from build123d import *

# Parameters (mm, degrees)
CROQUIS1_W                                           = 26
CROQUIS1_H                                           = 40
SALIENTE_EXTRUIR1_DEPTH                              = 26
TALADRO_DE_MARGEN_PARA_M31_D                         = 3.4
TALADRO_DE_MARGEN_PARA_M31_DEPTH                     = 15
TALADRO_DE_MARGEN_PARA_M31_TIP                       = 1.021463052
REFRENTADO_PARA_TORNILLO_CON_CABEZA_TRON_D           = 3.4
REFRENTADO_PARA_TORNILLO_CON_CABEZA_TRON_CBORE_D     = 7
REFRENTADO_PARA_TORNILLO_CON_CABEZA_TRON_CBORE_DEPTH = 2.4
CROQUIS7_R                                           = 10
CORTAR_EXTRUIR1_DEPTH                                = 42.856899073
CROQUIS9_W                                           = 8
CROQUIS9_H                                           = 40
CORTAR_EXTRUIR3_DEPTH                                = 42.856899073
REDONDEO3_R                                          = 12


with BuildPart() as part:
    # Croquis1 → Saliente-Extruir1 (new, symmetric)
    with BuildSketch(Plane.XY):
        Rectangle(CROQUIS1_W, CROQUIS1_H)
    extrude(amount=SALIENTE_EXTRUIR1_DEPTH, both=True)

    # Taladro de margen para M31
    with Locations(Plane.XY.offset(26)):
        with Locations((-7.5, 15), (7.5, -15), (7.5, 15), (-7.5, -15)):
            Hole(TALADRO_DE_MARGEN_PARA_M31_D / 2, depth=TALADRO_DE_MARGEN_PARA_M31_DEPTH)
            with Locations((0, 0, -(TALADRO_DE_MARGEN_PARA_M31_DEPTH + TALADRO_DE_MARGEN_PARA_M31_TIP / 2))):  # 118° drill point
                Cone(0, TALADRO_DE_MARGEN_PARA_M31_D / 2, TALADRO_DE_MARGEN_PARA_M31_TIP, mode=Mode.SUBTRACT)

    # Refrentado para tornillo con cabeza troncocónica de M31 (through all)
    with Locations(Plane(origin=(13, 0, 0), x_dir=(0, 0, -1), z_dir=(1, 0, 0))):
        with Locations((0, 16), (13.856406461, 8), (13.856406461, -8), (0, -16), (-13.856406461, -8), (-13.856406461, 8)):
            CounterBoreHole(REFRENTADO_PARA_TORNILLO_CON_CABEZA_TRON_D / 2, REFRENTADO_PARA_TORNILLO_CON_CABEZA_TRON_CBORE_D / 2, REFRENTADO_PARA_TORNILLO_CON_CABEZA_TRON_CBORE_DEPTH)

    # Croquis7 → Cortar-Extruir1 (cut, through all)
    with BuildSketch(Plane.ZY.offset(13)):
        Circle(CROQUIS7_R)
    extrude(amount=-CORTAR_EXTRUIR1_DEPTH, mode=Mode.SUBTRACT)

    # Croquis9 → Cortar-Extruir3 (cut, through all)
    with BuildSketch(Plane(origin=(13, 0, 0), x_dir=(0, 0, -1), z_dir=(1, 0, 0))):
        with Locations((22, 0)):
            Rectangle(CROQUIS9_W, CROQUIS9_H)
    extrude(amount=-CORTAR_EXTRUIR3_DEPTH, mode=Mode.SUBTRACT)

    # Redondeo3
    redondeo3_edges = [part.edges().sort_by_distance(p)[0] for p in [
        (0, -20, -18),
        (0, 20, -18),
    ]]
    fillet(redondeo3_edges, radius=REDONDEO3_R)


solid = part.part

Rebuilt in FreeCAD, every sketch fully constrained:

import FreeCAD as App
import Part
import Sketcher
from FreeCAD import Vector
Q = App.Units.Quantity


def edges_at(feature, points):
    """Names of the edges that pass closest to the given points."""
    edges = feature.Shape.Edges
    near = lambda p: min(range(len(edges)), key=lambda i: edges[i].distToShape(Part.Vertex(*p))[0])
    return sorted({f"Edge{near(p) + 1}" for p in points})

doc = App.newDocument("Part")
body = doc.addObject("PartDesign::Body", "Body")

# Sketch on XY plane
sketch1 = body.newObject("Sketcher::SketchObject", "Sketch")
sketch1.AttachmentSupport = (doc.getObject("XY_Plane"), [""])
sketch1.MapMode = "FlatFace"
sketch1.addGeometry(Part.LineSegment(Vector(-13, 20, 0), Vector(-13, -20, 0)), False)
sketch1.addGeometry(Part.LineSegment(Vector(-13, -20, 0), Vector(13, -20, 0)), False)
sketch1.addGeometry(Part.LineSegment(Vector(13, -20, 0), Vector(13, 20, 0)), False)
sketch1.addGeometry(Part.LineSegment(Vector(13, 20, 0), Vector(-13, 20, 0)), False)
sketch1.addConstraint(Sketcher.Constraint("Coincident", 0, 2, 1, 1))
sketch1.addConstraint(Sketcher.Constraint("Coincident", 1, 2, 2, 1))
sketch1.addConstraint(Sketcher.Constraint("Coincident", 2, 2, 3, 1))
sketch1.addConstraint(Sketcher.Constraint("Coincident", 3, 2, 0, 1))
sketch1.addConstraint(Sketcher.Constraint("Vertical", 0))
sketch1.addConstraint(Sketcher.Constraint("Horizontal", 1))
sketch1.addConstraint(Sketcher.Constraint("Vertical", 2))
sketch1.addConstraint(Sketcher.Constraint("Horizontal", 3))
sketch1.addConstraint(Sketcher.Constraint("Symmetric", 0, 2, 2, 2, -1, 1))
sketch1.addConstraint(Sketcher.Constraint("DistanceX", 1, 1, 1, 2, Q("26 mm")))
sketch1.addConstraint(Sketcher.Constraint("DistanceY", 0, 2, 0, 1, Q("40 mm")))
pad1 = body.newObject("PartDesign::Pad", "Pad")
pad1.Profile = sketch1
pad1.Length = 52
pad1.Midplane = True

# Sketch on XY plane
sketch2 = body.newObject("Sketcher::SketchObject", "Sketch001")
sketch2.AttachmentSupport = (doc.getObject("XY_Plane"), [""])
sketch2.MapMode = "FlatFace"
sketch2.AttachmentOffset = App.Placement(Vector(0, 0, 26), App.Rotation())
sketch2.addGeometry(Part.Circle(Vector(-7.5, 15, 0), Vector(0, 0, 1), 1.7), False)
sketch2.addGeometry(Part.Circle(Vector(7.5, -15, 0), Vector(0, 0, 1), 1.7), False)
sketch2.addGeometry(Part.Circle(Vector(7.5, 15, 0), Vector(0, 0, 1), 1.7), False)
sketch2.addGeometry(Part.Circle(Vector(-7.5, -15, 0), Vector(0, 0, 1), 1.7), False)
sketch2.addConstraint(Sketcher.Constraint("Equal", 0, 1))
sketch2.addConstraint(Sketcher.Constraint("Equal", 1, 2))
sketch2.addConstraint(Sketcher.Constraint("Equal", 2, 3))
sketch2.addConstraint(Sketcher.Constraint("Symmetric", 0, 3, 1, 3, -1, 1))
sketch2.addConstraint(Sketcher.Constraint("Symmetric", 2, 3, 3, 3, -1, 1))
sketch2.addConstraint(Sketcher.Constraint("Symmetric", 0, 3, 2, 3, -2))
sketch2.addConstraint(Sketcher.Constraint("Diameter", 0, Q("3.4 mm")))
sketch2.addConstraint(Sketcher.Constraint("DistanceY", -1, 1, 0, 3, Q("15 mm")))
sketch2.addConstraint(Sketcher.Constraint("DistanceX", 0, 3, 1, 3, Q("15 mm")))
doc.recompute()
hole = body.newObject("PartDesign::Hole", "Hole")
hole.Profile = sketch2
hole.ThreadType = "None"
hole.Diameter = 3.4
hole.DepthType = "Dimension"
hole.Depth = 15
hole.DrillPoint = "Angled"
hole.DrillPointAngle = 118

# Sketch on YZ plane
sketch3 = body.newObject("Sketcher::SketchObject", "Sketch002")
sketch3.AttachmentSupport = (doc.getObject("YZ_Plane"), [""])
sketch3.MapMode = "FlatFace"
sketch3.AttachmentOffset = App.Placement(Vector(0, 0, 13), App.Rotation())
sketch3.addGeometry(Part.Circle(Vector(16, 0, 0), Vector(0, 0, 1), 1.7), False)
sketch3.addGeometry(Part.Circle(Vector(8, -13.9, 0), Vector(0, 0, 1), 1.7), False)
sketch3.addGeometry(Part.Circle(Vector(-8, -13.9, 0), Vector(0, 0, 1), 1.7), False)
sketch3.addGeometry(Part.Circle(Vector(-16, 0, 0), Vector(0, 0, 1), 1.7), False)
sketch3.addGeometry(Part.Circle(Vector(-8, 13.9, 0), Vector(0, 0, 1), 1.7), False)
sketch3.addGeometry(Part.Circle(Vector(8, 13.9, 0), Vector(0, 0, 1), 1.7), False)
sketch3.addConstraint(Sketcher.Constraint("Equal", 0, 1))
sketch3.addConstraint(Sketcher.Constraint("Equal", 1, 2))
sketch3.addConstraint(Sketcher.Constraint("Equal", 2, 3))
sketch3.addConstraint(Sketcher.Constraint("Equal", 3, 4))
sketch3.addConstraint(Sketcher.Constraint("Equal", 4, 5))
sketch3.addConstraint(Sketcher.Constraint("Symmetric", 0, 3, 3, 3, -1, 1))
sketch3.addConstraint(Sketcher.Constraint("Symmetric", 1, 3, 4, 3, -1, 1))
sketch3.addConstraint(Sketcher.Constraint("Symmetric", 2, 3, 5, 3, -1, 1))
sketch3.addConstraint(Sketcher.Constraint("Symmetric", 1, 3, 2, 3, -2))
sketch3.addConstraint(Sketcher.Constraint("PointOnObject", 0, 3, -1))
sketch3.addConstraint(Sketcher.Constraint("Diameter", 0, Q("3.4 mm")))
sketch3.addConstraint(Sketcher.Constraint("DistanceX", -1, 1, 0, 3, Q("16 mm")))
sketch3.addConstraint(Sketcher.Constraint("DistanceX", -1, 1, 1, 3, Q("8 mm")))
sketch3.addConstraint(Sketcher.Constraint("DistanceY", 1, 3, -1, 1, Q("13.856406 mm")))
doc.recompute()
hole2 = body.newObject("PartDesign::Hole", "Hole001")
hole2.Profile = sketch3
hole2.ThreadType = "None"
hole2.Diameter = 3.4
hole2.DepthType = "ThroughAll"
hole2.HoleCutType = "Counterbore"
hole2.HoleCutDiameter = 7
hole2.HoleCutDepth = 2.4

# Sketch on YZ plane
sketch4 = body.newObject("Sketcher::SketchObject", "Sketch003")
sketch4.AttachmentSupport = (doc.getObject("YZ_Plane"), [""])
sketch4.MapMode = "FlatFace"
sketch4.AttachmentOffset = App.Placement(Vector(0, 0, -13), App.Rotation())
sketch4.addGeometry(Part.Circle(Vector(0, 0, 0), Vector(0, 0, 1), 10), False)
sketch4.addConstraint(Sketcher.Constraint("Coincident", 0, 3, -1, 1))
sketch4.addConstraint(Sketcher.Constraint("Diameter", 0, Q("20 mm")))
pocket1 = body.newObject("PartDesign::Pocket", "Pocket")
pocket1.Profile = sketch4
pocket1.Type = "ThroughAll"
pocket1.Reversed = True

# Sketch on YZ plane
sketch5 = body.newObject("Sketcher::SketchObject", "Sketch004")
sketch5.AttachmentSupport = (doc.getObject("YZ_Plane"), [""])
sketch5.MapMode = "FlatFace"
sketch5.AttachmentOffset = App.Placement(Vector(0, 0, 13), App.Rotation())
sketch5.addGeometry(Part.LineSegment(Vector(20, -18, 0), Vector(-20, -18, 0)), False)
sketch5.addGeometry(Part.LineSegment(Vector(-20, -18, 0), Vector(-20, -26, 0)), False)
sketch5.addGeometry(Part.LineSegment(Vector(-20, -26, 0), Vector(20, -26, 0)), False)
sketch5.addGeometry(Part.LineSegment(Vector(20, -26, 0), Vector(20, -18, 0)), False)
sketch5.addConstraint(Sketcher.Constraint("Coincident", 0, 2, 1, 1))
sketch5.addConstraint(Sketcher.Constraint("Coincident", 1, 2, 2, 1))
sketch5.addConstraint(Sketcher.Constraint("Coincident", 2, 2, 3, 1))
sketch5.addConstraint(Sketcher.Constraint("Coincident", 3, 2, 0, 1))
sketch5.addConstraint(Sketcher.Constraint("Horizontal", 0))
sketch5.addConstraint(Sketcher.Constraint("Vertical", 1))
sketch5.addConstraint(Sketcher.Constraint("Horizontal", 2))
sketch5.addConstraint(Sketcher.Constraint("Vertical", 3))
sketch5.addConstraint(Sketcher.Constraint("DistanceX", 0, 2, 0, 1, Q("40 mm")))
sketch5.addConstraint(Sketcher.Constraint("DistanceY", 1, 2, 1, 1, Q("8 mm")))
sketch5.addConstraint(Sketcher.Constraint("DistanceX", 0, 2, -1, 1, Q("20 mm")))
sketch5.addConstraint(Sketcher.Constraint("DistanceY", 0, 2, -1, 1, Q("18 mm")))
pocket2 = body.newObject("PartDesign::Pocket", "Pocket001")
pocket2.Profile = sketch5
pocket2.Type = "ThroughAll"
doc.recompute()

fillet = body.newObject("PartDesign::Fillet", "Fillet")
fillet.Base = (pocket2, edges_at(pocket2, [(0, -20, -18), (0, 20, -18)]))
fillet.Radius = 12

doc.recompute()
